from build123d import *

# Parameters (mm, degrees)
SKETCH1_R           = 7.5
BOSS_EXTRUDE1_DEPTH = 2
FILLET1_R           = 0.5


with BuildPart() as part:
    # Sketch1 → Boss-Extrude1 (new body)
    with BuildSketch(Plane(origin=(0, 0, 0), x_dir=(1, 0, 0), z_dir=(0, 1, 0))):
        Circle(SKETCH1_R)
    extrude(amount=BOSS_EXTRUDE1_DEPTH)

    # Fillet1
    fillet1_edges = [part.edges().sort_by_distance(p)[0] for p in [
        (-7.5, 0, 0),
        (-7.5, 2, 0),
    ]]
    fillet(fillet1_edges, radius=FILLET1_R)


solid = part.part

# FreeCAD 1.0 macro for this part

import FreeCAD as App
import Part
import Sketcher


def edges_at(feature, points):
    """Names of the edges that pass closest to the given points."""
    edges = feature.Shape.Edges
    near = lambda p: min(range(len(edges)), key=lambda i: edges[i].distToShape(Part.Vertex(*p))[0])
    return sorted({f"Edge{near(p) + 1}" for p in points})

doc = App.newDocument("Part")
body = doc.addObject("PartDesign::Body", "Body")

# Sketch on XZ plane
sketch1 = body.newObject("Sketcher::SketchObject", "Sketch")
sketch1.AttachmentSupport = (doc.getObject("XZ_Plane"), [""])
sketch1.MapMode = "FlatFace"
sketch1.addGeometry(Part.Circle(App.Vector(0, 0, 0), App.Vector(0, 0, 1), 7.5), False)
sketch1.addConstraint([
    Sketcher.Constraint("Coincident", 0, 3, -1, 1),
    Sketcher.Constraint("Diameter", 0, 15.0),
])
pad1 = body.newObject("PartDesign::Pad", "Pad")
pad1.Profile = sketch1
pad1.Length = 2
pad1.Reversed = True
doc.recompute()

fillet = body.newObject("PartDesign::Fillet", "Fillet")
fillet.Base = (pad1, edges_at(pad1, [(-7.5, 0, 0), (-7.5, 2, 0)]))
fillet.Radius = 0.5

doc.recompute()
